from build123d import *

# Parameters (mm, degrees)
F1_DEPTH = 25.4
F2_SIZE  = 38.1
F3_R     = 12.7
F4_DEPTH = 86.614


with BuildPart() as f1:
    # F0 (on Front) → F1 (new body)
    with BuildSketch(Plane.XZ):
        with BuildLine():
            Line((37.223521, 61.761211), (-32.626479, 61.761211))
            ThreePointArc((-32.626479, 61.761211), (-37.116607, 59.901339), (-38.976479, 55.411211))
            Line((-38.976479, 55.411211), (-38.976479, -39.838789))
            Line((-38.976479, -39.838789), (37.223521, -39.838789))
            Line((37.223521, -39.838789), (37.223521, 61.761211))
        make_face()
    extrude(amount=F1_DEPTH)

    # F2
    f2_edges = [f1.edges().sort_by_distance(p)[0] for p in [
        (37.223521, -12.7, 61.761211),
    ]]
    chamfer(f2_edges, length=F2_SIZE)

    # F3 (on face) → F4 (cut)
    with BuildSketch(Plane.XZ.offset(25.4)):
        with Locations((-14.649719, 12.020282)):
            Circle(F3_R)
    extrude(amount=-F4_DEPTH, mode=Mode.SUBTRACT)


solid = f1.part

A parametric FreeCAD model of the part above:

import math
import FreeCAD as App
import Part
import Sketcher
from FreeCAD import Vector
Q = App.Units.Quantity


def edges_at(feature, points):
    """Names of the edges that pass closest to the given points."""
    edges = feature.Shape.Edges
    near = lambda p: min(range(len(edges)), key=lambda i: edges[i].distToShape(Part.Vertex(*p))[0])
    return sorted({f"Edge{near(p) + 1}" for p in points})

doc = App.newDocument("Part")
body = doc.addObject("PartDesign::Body", "Body")

sketch1 = body.newObject("Sketcher::SketchObject", "Sketch")
sketch1.AttachmentSupport = (doc.getObject("XZ_Plane"), [""])
sketch1.MapMode = "FlatFace"
sketch1.addGeometry(Part.LineSegment(Vector(37, 62, 0), Vector(-33, 62, 0)), False)
sketch1.addGeometry(Part.ArcOfCircle(Part.Circle(Vector(-33, 55, 0), Vector(0, 0, 1), 6), math.radians(90), math.radians(180)), False)
sketch1.addGeometry(Part.LineSegment(Vector(-39, 55, 0), Vector(-39, -40, 0)), False)
sketch1.addGeometry(Part.LineSegment(Vector(-39, -40, 0), Vector(37, -40, 0)), False)
sketch1.addGeometry(Part.LineSegment(Vector(37, -40, 0), Vector(37, 62, 0)), False)
sketch1.addConstraint(Sketcher.Constraint("Tangent", 0, 2, 1, 1))
sketch1.addConstraint(Sketcher.Constraint("Tangent", 1, 2, 2, 1))
sketch1.addConstraint(Sketcher.Constraint("Coincident", 2, 2, 3, 1))
sketch1.addConstraint(Sketcher.Constraint("Coincident", 3, 2, 4, 1))
sketch1.addConstraint(Sketcher.Constraint("Coincident", 4, 2, 0, 1))
sketch1.addConstraint(Sketcher.Constraint("Horizontal", 0))
sketch1.addConstraint(Sketcher.Constraint("Vertical", 2))
sketch1.addConstraint(Sketcher.Constraint("Horizontal", 3))
sketch1.addConstraint(Sketcher.Constraint("Vertical", 4))
sketch1.addConstraint(Sketcher.Constraint("DistanceX", 3, 1, 3, 2, Q("3 in")))
sketch1.addConstraint(Sketcher.Constraint("DistanceY", 4, 1, 4, 2, Q("4 in")))
sketch1.addConstraint(Sketcher.Constraint("Radius", 1, Q("0.25 in")))
sketch1.addConstraint(Sketcher.Constraint("DistanceX", 1, 3, -1, 1, 32.626479))
sketch1.addConstraint(Sketcher.Constraint("DistanceY", -1, 1, 1, 3, 55.411211))
pad1 = body.newObject("PartDesign::Pad", "Pad")
pad1.Profile = sketch1
pad1.Length = Q("1 in")
doc.recompute()

chamfer = body.newObject("PartDesign::Chamfer", "Chamfer")
chamfer.Base = (pad1, edges_at(pad1, [(37.224, -12.7, 61.761)]))
chamfer.Size = Q("1.5 in")

sketch2 = body.newObject("Sketcher::SketchObject", "Sketch001")
sketch2.AttachmentSupport = (doc.getObject("XZ_Plane"), [""])
sketch2.MapMode = "FlatFace"
sketch2.AttachmentOffset = App.Placement(Vector(0, 0, 1 * 25.4), App.Rotation())
sketch2.addGeometry(Part.Circle(Vector(-15, 12, 0), Vector(0, 0, 1), 13), False)
sketch2.addConstraint(Sketcher.Constraint("Diameter", 0, Q("1 in")))
sketch2.addConstraint(Sketcher.Constraint("DistanceX", 0, 3, -1, 1, 14.649719))
sketch2.addConstraint(Sketcher.Constraint("DistanceY", -1, 1, 0, 3, 12.020282))
pocket1 = body.newObject("PartDesign::Pocket", "Pocket")
pocket1.Profile = sketch2
pocket1.Length = Q("3.41 in")

doc.recompute()
